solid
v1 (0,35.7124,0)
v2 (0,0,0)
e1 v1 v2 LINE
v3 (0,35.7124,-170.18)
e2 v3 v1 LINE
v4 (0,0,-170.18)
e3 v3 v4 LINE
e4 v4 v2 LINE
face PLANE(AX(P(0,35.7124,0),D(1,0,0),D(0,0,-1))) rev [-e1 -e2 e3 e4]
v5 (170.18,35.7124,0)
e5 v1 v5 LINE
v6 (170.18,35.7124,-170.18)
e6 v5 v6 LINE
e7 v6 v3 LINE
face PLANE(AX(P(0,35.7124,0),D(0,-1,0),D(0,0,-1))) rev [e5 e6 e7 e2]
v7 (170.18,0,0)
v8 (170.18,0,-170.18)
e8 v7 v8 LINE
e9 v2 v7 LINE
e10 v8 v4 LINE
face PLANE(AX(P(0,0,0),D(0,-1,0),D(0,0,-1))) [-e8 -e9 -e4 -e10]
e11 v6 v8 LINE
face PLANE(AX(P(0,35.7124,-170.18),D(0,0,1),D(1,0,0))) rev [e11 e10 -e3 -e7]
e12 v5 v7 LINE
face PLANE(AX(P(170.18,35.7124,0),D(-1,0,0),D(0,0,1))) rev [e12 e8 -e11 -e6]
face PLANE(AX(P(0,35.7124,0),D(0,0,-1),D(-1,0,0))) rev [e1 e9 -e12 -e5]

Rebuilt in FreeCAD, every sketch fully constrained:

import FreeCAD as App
import Part
import Sketcher
from FreeCAD import Vector
Q = App.Units.Quantity


def add_polygon(sketch, points):
    """Adds a closed chain of lines whose ends are joined by coincident constraints."""
    first, n = sketch.GeometryCount, len(points)
    for a, b in zip(points, points[1:] + points[:1]):
        sketch.addGeometry(Part.LineSegment(App.Vector(*a, 0), App.Vector(*b, 0)), False)
    for i in range(n):
        sketch.addConstraint(Sketcher.Constraint("Coincident", first + i, 2, first + (i + 1) % n, 1))

doc = App.newDocument("Part")
params = doc.addObject("Spreadsheet::Sheet", "Params")
for row, (alias, value) in enumerate([
    ("sketch1_width", "6.7 in"),
    ("pad1_length", "1.406 in"),
], start=1):
    params.set(f"A{row}", alias)
    params.set(f"B{row}", "=" + value)
    params.setAlias(f"B{row}", alias)

body = doc.addObject("PartDesign::Body", "Body")

# Sketch on XZ plane
sketch1 = body.newObject("Sketcher::SketchObject", "Sketch")
sketch1.AttachmentSupport = (doc.getObject("XZ_Plane"), [""])
sketch1.MapMode = "FlatFace"
add_polygon(sketch1, [(0, -170.18), (0, 0), (170.18, 0), (170.18, -170.18)])  # lines 0-3
sketch1.addConstraint(Sketcher.Constraint("Vertical", 0))
sketch1.addConstraint(Sketcher.Constraint("Horizontal", 1))
sketch1.addConstraint(Sketcher.Constraint("Vertical", 2))
sketch1.addConstraint(Sketcher.Constraint("Horizontal", 3))
sketch1.addConstraint(Sketcher.Constraint("Coincident", 0, 2, -1, 1))
sketch1.addConstraint(Sketcher.Constraint("Equal", 3, 0))
sketch1.addConstraint(Sketcher.Constraint("DistanceX", 1, 1, 1, 2, Q("6.7 in")))
sketch1.setExpression("Constraints[10]", "Params.sketch1_width")
pad1 = body.newObject("PartDesign::Pad", "Pad")
pad1.Profile = sketch1
pad1.setExpression("Length", "Params.pad1_length")
pad1.Reversed = True

doc.recompute()
